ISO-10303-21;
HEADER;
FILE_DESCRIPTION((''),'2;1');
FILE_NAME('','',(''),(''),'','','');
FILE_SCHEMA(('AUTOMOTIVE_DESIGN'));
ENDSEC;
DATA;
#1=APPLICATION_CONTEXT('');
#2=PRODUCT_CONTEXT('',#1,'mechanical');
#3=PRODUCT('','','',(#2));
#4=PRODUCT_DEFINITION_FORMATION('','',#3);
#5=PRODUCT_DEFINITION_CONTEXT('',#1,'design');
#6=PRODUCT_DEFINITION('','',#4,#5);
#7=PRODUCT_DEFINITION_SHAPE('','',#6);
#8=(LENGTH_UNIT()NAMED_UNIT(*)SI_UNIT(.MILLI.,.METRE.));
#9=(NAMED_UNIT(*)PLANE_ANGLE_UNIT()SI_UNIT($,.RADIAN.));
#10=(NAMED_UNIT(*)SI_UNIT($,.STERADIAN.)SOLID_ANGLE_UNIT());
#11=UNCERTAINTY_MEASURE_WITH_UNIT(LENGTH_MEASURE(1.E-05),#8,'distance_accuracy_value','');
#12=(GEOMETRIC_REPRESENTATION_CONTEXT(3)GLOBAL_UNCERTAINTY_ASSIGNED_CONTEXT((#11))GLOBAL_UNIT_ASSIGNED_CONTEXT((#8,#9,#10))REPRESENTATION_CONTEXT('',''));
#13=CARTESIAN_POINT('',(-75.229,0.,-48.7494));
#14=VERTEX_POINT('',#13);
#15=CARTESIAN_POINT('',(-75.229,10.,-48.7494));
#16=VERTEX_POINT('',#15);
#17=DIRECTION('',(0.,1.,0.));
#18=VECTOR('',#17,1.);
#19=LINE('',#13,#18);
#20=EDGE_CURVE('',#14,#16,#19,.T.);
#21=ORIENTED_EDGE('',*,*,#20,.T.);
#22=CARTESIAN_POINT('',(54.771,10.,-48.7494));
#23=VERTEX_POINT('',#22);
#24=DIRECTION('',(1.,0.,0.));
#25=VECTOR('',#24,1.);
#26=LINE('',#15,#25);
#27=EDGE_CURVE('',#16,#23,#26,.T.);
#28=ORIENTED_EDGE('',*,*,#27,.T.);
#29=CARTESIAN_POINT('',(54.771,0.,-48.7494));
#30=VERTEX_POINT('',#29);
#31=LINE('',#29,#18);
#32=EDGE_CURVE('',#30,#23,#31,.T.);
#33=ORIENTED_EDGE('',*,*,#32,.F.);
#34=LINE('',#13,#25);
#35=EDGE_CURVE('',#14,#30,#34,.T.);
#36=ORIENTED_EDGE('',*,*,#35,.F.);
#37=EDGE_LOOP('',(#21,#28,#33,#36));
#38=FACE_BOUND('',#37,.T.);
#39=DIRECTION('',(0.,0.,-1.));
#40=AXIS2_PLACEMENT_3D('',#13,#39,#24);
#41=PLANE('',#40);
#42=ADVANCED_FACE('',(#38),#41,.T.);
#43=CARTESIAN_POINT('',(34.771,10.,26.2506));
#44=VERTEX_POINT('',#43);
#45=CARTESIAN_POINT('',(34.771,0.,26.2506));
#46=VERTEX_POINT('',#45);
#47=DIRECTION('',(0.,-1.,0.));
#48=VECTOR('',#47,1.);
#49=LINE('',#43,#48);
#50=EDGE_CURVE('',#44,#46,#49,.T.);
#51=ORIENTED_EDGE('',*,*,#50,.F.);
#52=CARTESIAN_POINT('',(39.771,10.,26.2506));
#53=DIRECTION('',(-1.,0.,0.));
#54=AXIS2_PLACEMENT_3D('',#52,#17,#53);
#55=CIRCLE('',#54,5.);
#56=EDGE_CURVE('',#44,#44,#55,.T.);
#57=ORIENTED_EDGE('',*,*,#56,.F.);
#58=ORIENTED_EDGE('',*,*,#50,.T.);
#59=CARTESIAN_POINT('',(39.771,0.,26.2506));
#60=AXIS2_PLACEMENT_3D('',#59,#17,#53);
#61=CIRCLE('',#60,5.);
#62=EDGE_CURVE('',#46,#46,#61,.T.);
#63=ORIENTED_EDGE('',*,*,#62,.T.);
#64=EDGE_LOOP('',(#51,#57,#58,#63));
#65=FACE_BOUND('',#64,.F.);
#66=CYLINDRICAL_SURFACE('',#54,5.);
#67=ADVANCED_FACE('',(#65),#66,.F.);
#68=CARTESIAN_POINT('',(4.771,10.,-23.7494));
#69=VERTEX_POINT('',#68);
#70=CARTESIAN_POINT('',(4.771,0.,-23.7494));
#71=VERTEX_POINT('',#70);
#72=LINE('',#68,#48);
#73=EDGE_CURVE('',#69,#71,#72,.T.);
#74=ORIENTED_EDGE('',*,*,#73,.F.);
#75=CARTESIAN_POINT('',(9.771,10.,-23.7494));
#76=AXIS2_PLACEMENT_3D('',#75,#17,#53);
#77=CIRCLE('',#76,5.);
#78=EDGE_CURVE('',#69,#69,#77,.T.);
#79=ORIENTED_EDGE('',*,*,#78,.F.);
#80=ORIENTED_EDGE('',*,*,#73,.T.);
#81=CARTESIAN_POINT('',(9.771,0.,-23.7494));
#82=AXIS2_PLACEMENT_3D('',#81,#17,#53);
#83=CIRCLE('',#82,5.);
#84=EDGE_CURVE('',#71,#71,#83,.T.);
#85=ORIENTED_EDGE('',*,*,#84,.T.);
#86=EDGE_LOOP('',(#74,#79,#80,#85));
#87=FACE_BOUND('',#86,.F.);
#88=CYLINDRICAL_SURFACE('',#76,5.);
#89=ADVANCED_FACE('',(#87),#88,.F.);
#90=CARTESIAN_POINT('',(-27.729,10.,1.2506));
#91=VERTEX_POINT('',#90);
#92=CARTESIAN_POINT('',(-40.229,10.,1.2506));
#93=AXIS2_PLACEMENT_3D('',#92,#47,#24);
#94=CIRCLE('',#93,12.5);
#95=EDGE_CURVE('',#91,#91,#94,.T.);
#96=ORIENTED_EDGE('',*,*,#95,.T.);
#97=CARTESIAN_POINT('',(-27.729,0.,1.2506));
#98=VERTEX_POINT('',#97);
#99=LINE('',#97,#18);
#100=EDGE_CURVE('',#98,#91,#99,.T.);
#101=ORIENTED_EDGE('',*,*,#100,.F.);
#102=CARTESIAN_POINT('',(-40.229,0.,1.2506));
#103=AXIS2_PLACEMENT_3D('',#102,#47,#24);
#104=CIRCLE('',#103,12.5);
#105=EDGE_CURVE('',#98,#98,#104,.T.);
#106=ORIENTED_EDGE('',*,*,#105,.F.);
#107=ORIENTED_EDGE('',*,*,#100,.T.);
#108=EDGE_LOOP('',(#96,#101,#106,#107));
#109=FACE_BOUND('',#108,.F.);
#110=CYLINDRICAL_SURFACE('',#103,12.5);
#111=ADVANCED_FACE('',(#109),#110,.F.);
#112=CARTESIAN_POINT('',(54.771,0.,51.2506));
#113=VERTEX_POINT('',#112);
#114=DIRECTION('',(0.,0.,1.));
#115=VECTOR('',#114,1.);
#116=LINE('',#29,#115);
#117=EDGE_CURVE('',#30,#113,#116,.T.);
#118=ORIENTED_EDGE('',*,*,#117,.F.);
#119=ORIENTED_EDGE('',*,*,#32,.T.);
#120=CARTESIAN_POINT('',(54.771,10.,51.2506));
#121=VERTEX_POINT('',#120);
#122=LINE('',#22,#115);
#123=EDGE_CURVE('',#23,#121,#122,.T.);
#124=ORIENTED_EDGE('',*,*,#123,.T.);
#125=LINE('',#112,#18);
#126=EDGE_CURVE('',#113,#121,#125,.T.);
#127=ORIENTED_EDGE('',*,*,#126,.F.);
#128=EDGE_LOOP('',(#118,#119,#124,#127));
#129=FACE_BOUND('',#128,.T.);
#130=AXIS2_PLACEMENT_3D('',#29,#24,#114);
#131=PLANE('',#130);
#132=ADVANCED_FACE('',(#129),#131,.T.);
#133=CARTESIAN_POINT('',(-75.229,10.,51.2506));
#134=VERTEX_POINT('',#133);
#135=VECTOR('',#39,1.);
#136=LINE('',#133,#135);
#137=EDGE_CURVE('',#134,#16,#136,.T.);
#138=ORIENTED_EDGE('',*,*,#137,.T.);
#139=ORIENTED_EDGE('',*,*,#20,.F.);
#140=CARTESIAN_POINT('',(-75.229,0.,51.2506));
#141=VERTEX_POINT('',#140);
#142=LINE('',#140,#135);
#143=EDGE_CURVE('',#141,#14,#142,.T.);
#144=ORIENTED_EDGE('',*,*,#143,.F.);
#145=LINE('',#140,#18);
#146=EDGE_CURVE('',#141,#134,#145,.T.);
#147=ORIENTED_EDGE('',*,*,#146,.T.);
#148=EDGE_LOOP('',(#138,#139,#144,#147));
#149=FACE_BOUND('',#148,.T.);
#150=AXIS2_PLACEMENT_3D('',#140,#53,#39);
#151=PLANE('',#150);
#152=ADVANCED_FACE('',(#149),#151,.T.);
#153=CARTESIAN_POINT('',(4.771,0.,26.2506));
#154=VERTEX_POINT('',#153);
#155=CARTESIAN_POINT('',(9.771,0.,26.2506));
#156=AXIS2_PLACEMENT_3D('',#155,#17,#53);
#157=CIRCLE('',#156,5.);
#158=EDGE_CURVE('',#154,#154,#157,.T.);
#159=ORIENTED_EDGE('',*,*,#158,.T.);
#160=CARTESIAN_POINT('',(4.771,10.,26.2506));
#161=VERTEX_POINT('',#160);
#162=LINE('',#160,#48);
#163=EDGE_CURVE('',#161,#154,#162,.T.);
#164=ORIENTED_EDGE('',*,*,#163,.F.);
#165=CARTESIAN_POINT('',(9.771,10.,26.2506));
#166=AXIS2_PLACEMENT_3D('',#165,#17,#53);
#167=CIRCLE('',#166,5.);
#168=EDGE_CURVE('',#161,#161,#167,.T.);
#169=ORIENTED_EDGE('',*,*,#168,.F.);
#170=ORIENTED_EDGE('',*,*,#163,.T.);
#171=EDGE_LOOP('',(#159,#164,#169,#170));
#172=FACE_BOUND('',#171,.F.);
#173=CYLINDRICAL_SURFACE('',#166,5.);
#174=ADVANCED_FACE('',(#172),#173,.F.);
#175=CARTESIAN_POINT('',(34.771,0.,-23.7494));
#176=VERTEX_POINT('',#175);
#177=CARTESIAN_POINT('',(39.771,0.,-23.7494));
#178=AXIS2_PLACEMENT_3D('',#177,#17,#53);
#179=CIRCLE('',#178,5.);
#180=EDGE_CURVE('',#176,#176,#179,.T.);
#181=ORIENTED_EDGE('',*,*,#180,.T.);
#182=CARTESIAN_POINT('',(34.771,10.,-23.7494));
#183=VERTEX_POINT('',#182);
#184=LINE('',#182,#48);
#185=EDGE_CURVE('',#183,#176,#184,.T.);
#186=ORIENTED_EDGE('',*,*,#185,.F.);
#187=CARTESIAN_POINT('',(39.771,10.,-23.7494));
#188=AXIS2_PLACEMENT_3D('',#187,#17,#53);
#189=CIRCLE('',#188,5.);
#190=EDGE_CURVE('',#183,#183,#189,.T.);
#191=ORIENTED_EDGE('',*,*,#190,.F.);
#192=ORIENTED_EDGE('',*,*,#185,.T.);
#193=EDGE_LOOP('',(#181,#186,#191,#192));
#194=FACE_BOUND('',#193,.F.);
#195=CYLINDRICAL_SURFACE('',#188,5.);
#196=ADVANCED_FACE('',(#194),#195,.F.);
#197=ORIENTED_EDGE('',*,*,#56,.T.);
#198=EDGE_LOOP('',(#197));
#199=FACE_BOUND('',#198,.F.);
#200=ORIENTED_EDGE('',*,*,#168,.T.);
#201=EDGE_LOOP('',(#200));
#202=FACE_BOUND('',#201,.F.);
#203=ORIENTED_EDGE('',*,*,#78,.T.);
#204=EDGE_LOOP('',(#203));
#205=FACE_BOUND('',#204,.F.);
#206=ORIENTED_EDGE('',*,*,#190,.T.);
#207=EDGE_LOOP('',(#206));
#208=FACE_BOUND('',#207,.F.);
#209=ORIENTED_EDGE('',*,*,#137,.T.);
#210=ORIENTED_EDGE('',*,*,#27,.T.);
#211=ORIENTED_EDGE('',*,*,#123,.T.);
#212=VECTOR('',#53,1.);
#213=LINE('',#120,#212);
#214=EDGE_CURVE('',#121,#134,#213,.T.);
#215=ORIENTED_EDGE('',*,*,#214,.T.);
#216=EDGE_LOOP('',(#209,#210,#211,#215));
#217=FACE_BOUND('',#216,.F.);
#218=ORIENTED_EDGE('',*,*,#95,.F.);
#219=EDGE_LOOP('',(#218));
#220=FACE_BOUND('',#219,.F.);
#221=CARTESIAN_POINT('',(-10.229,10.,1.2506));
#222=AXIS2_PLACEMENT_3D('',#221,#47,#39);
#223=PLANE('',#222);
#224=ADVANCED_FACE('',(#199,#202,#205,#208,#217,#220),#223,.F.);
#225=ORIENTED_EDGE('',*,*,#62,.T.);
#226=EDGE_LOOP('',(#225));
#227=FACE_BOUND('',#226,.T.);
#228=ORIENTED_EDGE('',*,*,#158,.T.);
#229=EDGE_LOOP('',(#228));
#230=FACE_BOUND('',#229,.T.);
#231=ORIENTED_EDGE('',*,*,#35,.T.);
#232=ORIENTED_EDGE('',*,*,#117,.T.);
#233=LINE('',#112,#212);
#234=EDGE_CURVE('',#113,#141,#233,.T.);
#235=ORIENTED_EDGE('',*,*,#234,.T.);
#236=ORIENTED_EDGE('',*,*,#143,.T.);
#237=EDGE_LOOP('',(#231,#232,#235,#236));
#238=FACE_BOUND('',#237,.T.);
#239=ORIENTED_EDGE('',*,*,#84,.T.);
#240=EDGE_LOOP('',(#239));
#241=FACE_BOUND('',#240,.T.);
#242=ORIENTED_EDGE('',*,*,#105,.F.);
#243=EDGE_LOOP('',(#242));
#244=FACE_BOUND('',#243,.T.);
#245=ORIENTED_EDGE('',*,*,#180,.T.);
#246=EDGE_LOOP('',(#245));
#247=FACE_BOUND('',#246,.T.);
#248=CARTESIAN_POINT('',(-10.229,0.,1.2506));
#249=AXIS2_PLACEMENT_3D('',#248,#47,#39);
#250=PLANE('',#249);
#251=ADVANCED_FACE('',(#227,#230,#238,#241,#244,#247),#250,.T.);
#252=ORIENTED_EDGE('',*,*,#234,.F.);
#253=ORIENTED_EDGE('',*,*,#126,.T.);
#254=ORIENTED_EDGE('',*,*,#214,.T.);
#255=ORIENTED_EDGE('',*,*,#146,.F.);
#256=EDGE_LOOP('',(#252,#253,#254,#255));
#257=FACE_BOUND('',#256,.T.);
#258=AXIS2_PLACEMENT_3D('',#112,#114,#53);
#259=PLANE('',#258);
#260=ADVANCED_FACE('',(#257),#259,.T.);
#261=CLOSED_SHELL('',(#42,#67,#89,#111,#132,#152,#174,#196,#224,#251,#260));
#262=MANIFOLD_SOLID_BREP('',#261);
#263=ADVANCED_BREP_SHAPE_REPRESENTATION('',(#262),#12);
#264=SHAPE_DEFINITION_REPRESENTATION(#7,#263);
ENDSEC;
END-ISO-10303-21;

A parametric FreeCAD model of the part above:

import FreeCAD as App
import Part
import Sketcher
Q = App.Units.Quantity

doc = App.newDocument("Part")
params = doc.addObject("Spreadsheet::Sheet", "Params")
for row, (alias, value) in enumerate([
    ("sketch1_width", "130 mm"),
    ("sketch1_height", "100 mm"),
    ("pad1_length", "10 mm"),
    ("sketch2_diameter", "25 mm"),
    ("sketch3_diameter", "10 mm"),
], start=1):
    params.set(f"A{row}", alias)
    params.set(f"B{row}", "=" + value)
    params.setAlias(f"B{row}", alias)

body = doc.addObject("PartDesign::Body", "Body")

# Sketch on XZ plane
sketch1 = body.newObject("Sketcher::SketchObject", "Sketch")
sketch1.AttachmentSupport = (doc.getObject("XZ_Plane"), [""])
sketch1.MapMode = "FlatFace"
sketch1.addGeometry(Part.LineSegment(App.Vector(-75, 51, 0), App.Vector(-75, -49, 0)), False)
sketch1.addGeometry(Part.LineSegment(App.Vector(-75, -49, 0), App.Vector(55, -49, 0)), False)
sketch1.addGeometry(Part.LineSegment(App.Vector(55, -49, 0), App.Vector(55, 51, 0)), False)
sketch1.addGeometry(Part.LineSegment(App.Vector(55, 51, 0), App.Vector(-75, 51, 0)), False)
sketch1.addConstraint(Sketcher.Constraint("Coincident", 0, 2, 1, 1))
sketch1.addConstraint(Sketcher.Constraint("Coincident", 1, 2, 2, 1))
sketch1.addConstraint(Sketcher.Constraint("Coincident", 2, 2, 3, 1))
sketch1.addConstraint(Sketcher.Constraint("Coincident", 3, 2, 0, 1))
sketch1.addConstraint(Sketcher.Constraint("Vertical", 0))
sketch1.addConstraint(Sketcher.Constraint("Horizontal", 1))
sketch1.addConstraint(Sketcher.Constraint("Vertical", 2))
sketch1.addConstraint(Sketcher.Constraint("Horizontal", 3))
sketch1.addConstraint(Sketcher.Constraint("DistanceX", 1, 1, 1, 2, Q("130 mm")))
sketch1.addConstraint(Sketcher.Constraint("DistanceY", 0, 2, 0, 1, Q("100 mm")))
sketch1.addConstraint(Sketcher.Constraint("DistanceX", 0, 2, -1, 1, Q("75.229 mm")))
sketch1.addConstraint(Sketcher.Constraint("DistanceY", 0, 2, -1, 1, Q("48.7494 mm")))
sketch1.setExpression("Constraints[8]", "Params.sketch1_width")
sketch1.setExpression("Constraints[9]", "Params.sketch1_height")
pad1 = body.newObject("PartDesign::Pad", "Pad")
pad1.Profile = sketch1
pad1.setExpression("Length", "Params.pad1_length")
pad1.Reversed = True

# Sketch on XZ plane
sketch2 = body.newObject("Sketcher::SketchObject", "Sketch001")
sketch2.AttachmentSupport = (doc.getObject("XZ_Plane"), [""])
sketch2.MapMode = "FlatFace"
sketch2.addGeometry(Part.Circle(App.Vector(-40, 1, 0), App.Vector(0, 0, 1), 12), False)
sketch2.addConstraint(Sketcher.Constraint("Diameter", 0, Q("25 mm")))
sketch2.addConstraint(Sketcher.Constraint("DistanceX", 0, 3, -1, 1, Q("40.229 mm")))
sketch2.addConstraint(Sketcher.Constraint("DistanceY", -1, 1, 0, 3, Q("1.2506 mm")))
sketch2.setExpression("Constraints[0]", "Params.sketch2_diameter")
pocket1 = body.newObject("PartDesign::Pocket", "Pocket")
pocket1.Profile = sketch2
pocket1.Type = "ThroughAll"

# Sketch on XZ plane
sketch3 = body.newObject("Sketcher::SketchObject", "Sketch002")
sketch3.AttachmentSupport = (doc.getObject("XZ_Plane"), [""])
sketch3.MapMode = "FlatFace"
sketch3.AttachmentOffset = App.Placement(App.Vector(0, 0, -10), App.Rotation())
sketch3.addGeometry(Part.Circle(App.Vector(10, -24, 0), App.Vector(0, 0, 1), 5), False)
sketch3.addGeometry(Part.Circle(App.Vector(10, 26, 0), App.Vector(0, 0, 1), 5), False)
sketch3.addGeometry(Part.Circle(App.Vector(40, -24, 0), App.Vector(0, 0, 1), 5), False)
sketch3.addGeometry(Part.Circle(App.Vector(40, 26, 0), App.Vector(0, 0, 1), 5), False)
sketch3.addConstraint(Sketcher.Constraint("Equal", 0, 1))
sketch3.addConstraint(Sketcher.Constraint("Equal", 1, 2))
sketch3.addConstraint(Sketcher.Constraint("Equal", 2, 3))
sketch3.addConstraint(Sketcher.Constraint("Horizontal", 0, 3, 2, 3))
sketch3.addConstraint(Sketcher.Constraint("Horizontal", 1, 3, 3, 3))
sketch3.addConstraint(Sketcher.Constraint("Vertical", 0, 3, 1, 3))
sketch3.addConstraint(Sketcher.Constraint("Vertical", 2, 3, 3, 3))
sketch3.addConstraint(Sketcher.Constraint("Diameter", 0, Q("10 mm")))
sketch3.addConstraint(Sketcher.Constraint("DistanceY", 0, 3, 1, 3, Q("50 mm")))
sketch3.addConstraint(Sketcher.Constraint("DistanceX", 0, 3, 2, 3, Q("30 mm")))
sketch3.addConstraint(Sketcher.Constraint("DistanceX", -1, 1, 0, 3, Q("9.771 mm")))
sketch3.addConstraint(Sketcher.Constraint("DistanceY", 0, 3, -1, 1, Q("23.7494 mm")))
sketch3.setExpression("Constraints[7]", "Params.sketch3_diameter")
pocket2 = body.newObject("PartDesign::Pocket", "Pocket001")
pocket2.Profile = sketch3
pocket2.Type = "ThroughAll"
pocket2.Reversed = True

doc.recompute()
